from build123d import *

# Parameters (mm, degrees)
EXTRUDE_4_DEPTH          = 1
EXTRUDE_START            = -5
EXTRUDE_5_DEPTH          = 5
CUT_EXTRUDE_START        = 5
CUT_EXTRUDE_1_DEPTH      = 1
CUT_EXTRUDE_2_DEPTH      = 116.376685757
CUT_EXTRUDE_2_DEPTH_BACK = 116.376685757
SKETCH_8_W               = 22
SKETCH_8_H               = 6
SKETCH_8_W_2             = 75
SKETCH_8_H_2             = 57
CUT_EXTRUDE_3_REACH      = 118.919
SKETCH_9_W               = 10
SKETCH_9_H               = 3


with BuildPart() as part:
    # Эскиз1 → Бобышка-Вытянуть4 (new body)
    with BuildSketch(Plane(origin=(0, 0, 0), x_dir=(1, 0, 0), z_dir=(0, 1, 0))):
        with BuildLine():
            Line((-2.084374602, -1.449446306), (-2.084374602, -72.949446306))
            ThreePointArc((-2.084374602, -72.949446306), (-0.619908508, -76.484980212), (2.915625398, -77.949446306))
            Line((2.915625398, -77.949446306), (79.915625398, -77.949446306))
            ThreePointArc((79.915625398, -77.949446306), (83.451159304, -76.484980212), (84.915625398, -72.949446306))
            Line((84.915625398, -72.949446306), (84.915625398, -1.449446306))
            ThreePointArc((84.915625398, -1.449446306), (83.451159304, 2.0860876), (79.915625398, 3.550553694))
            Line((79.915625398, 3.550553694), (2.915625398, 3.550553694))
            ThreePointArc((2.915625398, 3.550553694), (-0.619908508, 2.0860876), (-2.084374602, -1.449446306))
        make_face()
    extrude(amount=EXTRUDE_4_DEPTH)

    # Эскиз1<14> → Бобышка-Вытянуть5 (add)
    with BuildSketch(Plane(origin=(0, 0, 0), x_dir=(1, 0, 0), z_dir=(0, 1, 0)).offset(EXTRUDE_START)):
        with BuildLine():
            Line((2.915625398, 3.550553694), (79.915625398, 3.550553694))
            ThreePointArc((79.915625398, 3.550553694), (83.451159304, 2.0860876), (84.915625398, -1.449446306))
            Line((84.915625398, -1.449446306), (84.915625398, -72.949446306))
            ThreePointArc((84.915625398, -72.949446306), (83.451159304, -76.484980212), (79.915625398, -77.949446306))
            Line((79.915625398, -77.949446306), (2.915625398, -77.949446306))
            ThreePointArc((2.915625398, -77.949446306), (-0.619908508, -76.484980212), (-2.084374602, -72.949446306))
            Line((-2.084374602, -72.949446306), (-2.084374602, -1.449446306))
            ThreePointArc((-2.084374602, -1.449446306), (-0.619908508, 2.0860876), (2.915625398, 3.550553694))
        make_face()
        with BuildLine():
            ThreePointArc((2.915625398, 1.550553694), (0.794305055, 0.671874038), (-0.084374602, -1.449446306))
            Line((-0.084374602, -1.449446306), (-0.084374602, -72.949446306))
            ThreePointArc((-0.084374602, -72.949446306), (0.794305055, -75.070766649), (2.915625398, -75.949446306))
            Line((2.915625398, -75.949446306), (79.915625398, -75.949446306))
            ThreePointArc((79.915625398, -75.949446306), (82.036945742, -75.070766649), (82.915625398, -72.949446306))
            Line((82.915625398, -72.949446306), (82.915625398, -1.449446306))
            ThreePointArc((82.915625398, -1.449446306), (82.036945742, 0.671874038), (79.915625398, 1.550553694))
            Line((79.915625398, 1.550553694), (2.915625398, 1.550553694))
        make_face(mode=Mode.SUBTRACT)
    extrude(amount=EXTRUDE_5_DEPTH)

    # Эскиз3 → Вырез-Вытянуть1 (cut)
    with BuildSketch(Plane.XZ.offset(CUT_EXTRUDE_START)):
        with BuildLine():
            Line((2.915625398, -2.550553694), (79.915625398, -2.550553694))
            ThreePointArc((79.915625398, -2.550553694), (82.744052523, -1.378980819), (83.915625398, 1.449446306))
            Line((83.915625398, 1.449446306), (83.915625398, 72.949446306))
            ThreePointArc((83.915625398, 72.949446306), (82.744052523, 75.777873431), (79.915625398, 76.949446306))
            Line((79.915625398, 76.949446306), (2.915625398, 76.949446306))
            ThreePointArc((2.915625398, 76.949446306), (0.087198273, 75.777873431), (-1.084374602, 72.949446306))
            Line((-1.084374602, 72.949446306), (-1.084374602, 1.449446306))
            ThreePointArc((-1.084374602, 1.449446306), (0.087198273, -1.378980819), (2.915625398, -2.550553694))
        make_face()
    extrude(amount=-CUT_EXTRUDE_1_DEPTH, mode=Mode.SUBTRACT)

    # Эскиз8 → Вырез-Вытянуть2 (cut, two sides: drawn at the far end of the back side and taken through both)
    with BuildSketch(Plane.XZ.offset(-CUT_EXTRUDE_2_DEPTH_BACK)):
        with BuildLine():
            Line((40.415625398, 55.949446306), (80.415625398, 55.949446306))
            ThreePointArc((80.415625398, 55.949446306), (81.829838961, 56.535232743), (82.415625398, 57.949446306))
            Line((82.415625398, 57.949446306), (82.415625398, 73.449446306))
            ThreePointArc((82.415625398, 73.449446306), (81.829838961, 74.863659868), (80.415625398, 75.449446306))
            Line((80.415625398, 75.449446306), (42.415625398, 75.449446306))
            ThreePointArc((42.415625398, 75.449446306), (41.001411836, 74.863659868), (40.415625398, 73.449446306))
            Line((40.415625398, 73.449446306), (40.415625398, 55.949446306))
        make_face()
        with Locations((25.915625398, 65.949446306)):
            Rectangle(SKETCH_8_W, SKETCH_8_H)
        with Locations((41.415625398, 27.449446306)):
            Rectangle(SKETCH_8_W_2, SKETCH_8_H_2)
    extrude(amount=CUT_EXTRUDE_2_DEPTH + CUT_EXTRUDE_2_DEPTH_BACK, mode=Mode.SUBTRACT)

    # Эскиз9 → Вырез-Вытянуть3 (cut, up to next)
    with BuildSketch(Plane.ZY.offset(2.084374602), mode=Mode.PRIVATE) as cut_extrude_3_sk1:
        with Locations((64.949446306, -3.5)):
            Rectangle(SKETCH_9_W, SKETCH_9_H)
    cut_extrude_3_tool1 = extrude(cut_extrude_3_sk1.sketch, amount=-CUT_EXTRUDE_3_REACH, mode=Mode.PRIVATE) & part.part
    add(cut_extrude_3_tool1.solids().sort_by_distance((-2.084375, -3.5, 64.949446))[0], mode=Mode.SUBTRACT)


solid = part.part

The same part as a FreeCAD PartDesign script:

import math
import FreeCAD as App
import Part
import Sketcher

V = App.Vector
Q = App.Units.Quantity


def add_polygon(sketch, points):
    """Adds a closed chain of lines whose ends are joined by coincident constraints."""
    first, n = sketch.GeometryCount, len(points)
    for a, b in zip(points, points[1:] + points[:1]):
        sketch.addGeometry(Part.LineSegment(App.Vector(*a, 0), App.Vector(*b, 0)), False)
    for i in range(n):
        sketch.addConstraint(Sketcher.Constraint("Coincident", first + i, 2, first + (i + 1) % n, 1))

doc = App.newDocument("Part")
body = doc.addObject("PartDesign::Body", "Body")

sketch1 = doc.addObject("Sketcher::SketchObject", "Sketch")
body.addObject(sketch1)
sketch1.AttachmentSupport = (doc.XZ_Plane, [""])
sketch1.MapMode = "FlatFace"
sketch1.addGeometry([
    Part.LineSegment(V(-2, 1, 0), V(-2, 73, 0)),
    Part.ArcOfCircle(Part.Circle(V(3, 73, 0), V(0, 0, 1), 5), math.radians(90), math.radians(180)),
    Part.LineSegment(V(3, 78, 0), V(80, 78, 0)),
    Part.ArcOfCircle(Part.Circle(V(80, 73, 0), V(0, 0, 1), 5), math.radians(0), math.radians(90)),
    Part.LineSegment(V(85, 73, 0), V(85, 1, 0)),
    Part.ArcOfCircle(Part.Circle(V(80, 1, 0), V(0, 0, 1), 5), math.radians(-90), math.radians(0)),
    Part.LineSegment(V(80, -4, 0), V(3, -4, 0)),
    Part.ArcOfCircle(Part.Circle(V(3, 1, 0), V(0, 0, 1), 5), math.radians(180), math.radians(270)),
], False)
sketch1.addConstraint([
    Sketcher.Constraint("Tangent", 0, 2, 1, 2),
    Sketcher.Constraint("Tangent", 1, 1, 2, 1),
    Sketcher.Constraint("Tangent", 2, 2, 3, 2),
    Sketcher.Constraint("Tangent", 3, 1, 4, 1),
    Sketcher.Constraint("Tangent", 4, 2, 5, 2),
    Sketcher.Constraint("Tangent", 5, 1, 6, 1),
    Sketcher.Constraint("Tangent", 6, 2, 7, 2),
    Sketcher.Constraint("Tangent", 7, 1, 0, 1),
    Sketcher.Constraint("Vertical", 0),
    Sketcher.Constraint("Horizontal", 2),
    Sketcher.Constraint("Vertical", 4),
    Sketcher.Constraint("Horizontal", 6),
    Sketcher.Constraint("Equal", 1, 3),
    Sketcher.Constraint("Equal", 3, 5),
    Sketcher.Constraint("Equal", 5, 7),
    Sketcher.Constraint("Radius", 1, Q("5 mm")),
    Sketcher.Constraint("DistanceX", 2, 1, 2, 2, Q("77 mm")),
    Sketcher.Constraint("DistanceY", 0, 1, 0, 2, Q("71.5 mm")),
    Sketcher.Constraint("DistanceX", -1, 1, 1, 3, Q("2.915625 mm")),
    Sketcher.Constraint("DistanceY", -1, 1, 1, 3, Q("72.949446 mm")),
])
pad1 = doc.addObject("PartDesign::Pad", "Pad")
body.addObject(pad1)
pad1.Profile = sketch1
pad1.Length = 1
pad1.Reversed = True

sketch2 = doc.addObject("Sketcher::SketchObject", "Sketch001")
body.addObject(sketch2)
sketch2.AttachmentSupport = (doc.XZ_Plane, [""])
sketch2.MapMode = "FlatFace"
sketch2.AttachmentOffset = App.Placement(V(0, 0, 5), App.Rotation())
sketch2.addGeometry([
    Part.LineSegment(V(79.9, -3.6, 0), V(2.9, -3.6, 0)),
    Part.ArcOfCircle(Part.Circle(V(2.9, 1.4, 0), V(0, 0, 1), 5), math.radians(180), math.radians(270)),
    Part.LineSegment(V(-2.1, 1.4, 0), V(-2.1, 72.9, 0)),
    Part.ArcOfCircle(Part.Circle(V(2.9, 72.9, 0), V(0, 0, 1), 5), math.radians(90), math.radians(180)),
    Part.LineSegment(V(2.9, 77.9, 0), V(79.9, 77.9, 0)),
    Part.ArcOfCircle(Part.Circle(V(79.9, 72.9, 0), V(0, 0, 1), 5), math.radians(0), math.radians(90)),
    Part.LineSegment(V(84.9, 72.9, 0), V(84.9, 1.4, 0)),
    Part.ArcOfCircle(Part.Circle(V(79.9, 1.4, 0), V(0, 0, 1), 5), math.radians(-90), math.radians(0)),
    Part.LineSegment(V(2.9, -1.6, 0), V(79.9, -1.6, 0)),
    Part.ArcOfCircle(Part.Circle(V(79.9, 1.4, 0), V(0, 0, 1), 3), math.radians(-90), math.radians(0)),
    Part.LineSegment(V(82.9, 1.4, 0), V(82.9, 72.9, 0)),
    Part.ArcOfCircle(Part.Circle(V(79.9, 72.9, 0), V(0, 0, 1), 3), math.radians(0), math.radians(90)),
    Part.LineSegment(V(79.9, 75.9, 0), V(2.9, 75.9, 0)),
    Part.ArcOfCircle(Part.Circle(V(2.9, 72.9, 0), V(0, 0, 1), 3), math.radians(90), math.radians(180)),
    Part.LineSegment(V(-0.1, 72.9, 0), V(-0.1, 1.4, 0)),
    Part.ArcOfCircle(Part.Circle(V(2.9, 1.4, 0), V(0, 0, 1), 3), math.radians(180), math.radians(270)),
], False)
sketch2.addConstraint([
    Sketcher.Constraint("Tangent", 0, 2, 1, 2),
    Sketcher.Constraint("Tangent", 1, 1, 2, 1),
    Sketcher.Constraint("Tangent", 2, 2, 3, 2),
    Sketcher.Constraint("Tangent", 3, 1, 4, 1),
    Sketcher.Constraint("Tangent", 4, 2, 5, 2),
    Sketcher.Constraint("Tangent", 5, 1, 6, 1),
    Sketcher.Constraint("Tangent", 6, 2, 7, 2),
    Sketcher.Constraint("Tangent", 7, 1, 0, 1),
    Sketcher.Constraint("Tangent", 8, 2, 9, 1),
    Sketcher.Constraint("Tangent", 9, 2, 10, 1),
    Sketcher.Constraint("Tangent", 10, 2, 11, 1),
    Sketcher.Constraint("Tangent", 11, 2, 12, 1),
    Sketcher.Constraint("Tangent", 12, 2, 13, 1),
    Sketcher.Constraint("Tangent", 13, 2, 14, 1),
    Sketcher.Constraint("Tangent", 14, 2, 15, 1),
    Sketcher.Constraint("Tangent", 15, 2, 8, 1),
    Sketcher.Constraint("Horizontal", 0),
    Sketcher.Constraint("Vertical", 2),
    Sketcher.Constraint("Horizontal", 4),
    Sketcher.Constraint("Vertical", 6),
    Sketcher.Constraint("Horizontal", 8),
    Sketcher.Constraint("Vertical", 10),
    Sketcher.Constraint("Horizontal", 12),
    Sketcher.Constraint("Vertical", 14),
    Sketcher.Constraint("Coincident", 9, 3, 7, 3),
    Sketcher.Constraint("Coincident", 11, 3, 5, 3),
    Sketcher.Constraint("Coincident", 13, 3, 3, 3),
    Sketcher.Constraint("Equal", 1, 3),
    Sketcher.Constraint("Equal", 3, 5),
    Sketcher.Constraint("Equal", 5, 7),
    Sketcher.Constraint("Equal", 13, 15),
    Sketcher.Constraint("Radius", 1, Q("5 mm")),
    Sketcher.Constraint("Radius", 9, Q("3 mm")),
    Sketcher.Constraint("DistanceX", 0, 2, 0, 1, Q("77 mm")),
    Sketcher.Constraint("DistanceY", 2, 1, 2, 2, Q("71.5 mm")),
    Sketcher.Constraint("DistanceX", -1, 1, 1, 3, Q("2.915625 mm")),
    Sketcher.Constraint("DistanceY", -1, 1, 1, 3, Q("1.449446 mm")),
])
pad2 = doc.addObject("PartDesign::Pad", "Pad001")
body.addObject(pad2)
pad2.Profile = sketch2
pad2.Length = 5
pad2.Reversed = True

sketch3 = doc.addObject("Sketcher::SketchObject", "Sketch002")
body.addObject(sketch3)
sketch3.AttachmentSupport = (doc.XZ_Plane, [""])
sketch3.MapMode = "FlatFace"
sketch3.AttachmentOffset = App.Placement(V(0, 0, 5), App.Rotation())
sketch3.addGeometry([
    Part.LineSegment(V(2.9, -2.6, 0), V(79.9, -2.6, 0)),
    Part.ArcOfCircle(Part.Circle(V(79.9, 1.4, 0), V(0, 0, 1), 4), math.radians(-90), math.radians(0)),
    Part.LineSegment(V(83.9, 1.4, 0), V(83.9, 72.9, 0)),
    Part.ArcOfCircle(Part.Circle(V(79.9, 72.9, 0), V(0, 0, 1), 4), math.radians(0), math.radians(90)),
    Part.LineSegment(V(79.9, 76.9, 0), V(2.9, 76.9, 0)),
    Part.ArcOfCircle(Part.Circle(V(2.9, 72.9, 0), V(0, 0, 1), 4), math.radians(90), math.radians(180)),
    Part.LineSegment(V(-1.1, 72.9, 0), V(-1.1, 1.4, 0)),
    Part.ArcOfCircle(Part.Circle(V(2.9, 1.4, 0), V(0, 0, 1), 4), math.radians(180), math.radians(270)),
], False)
sketch3.addConstraint([
    Sketcher.Constraint("Tangent", 0, 2, 1, 1),
    Sketcher.Constraint("Tangent", 1, 2, 2, 1),
    Sketcher.Constraint("Tangent", 2, 2, 3, 1),
    Sketcher.Constraint("Tangent", 3, 2, 4, 1),
    Sketcher.Constraint("Tangent", 4, 2, 5, 1),
    Sketcher.Constraint("Tangent", 5, 2, 6, 1),
    Sketcher.Constraint("Tangent", 6, 2, 7, 1),
    Sketcher.Constraint("Tangent", 7, 2, 0, 1),
    Sketcher.Constraint("Horizontal", 0),
    Sketcher.Constraint("Vertical", 2),
    Sketcher.Constraint("Horizontal", 4),
    Sketcher.Constraint("Vertical", 6),
    Sketcher.Constraint("Equal", 1, 3),
    Sketcher.Constraint("Equal", 3, 5),
    Sketcher.Constraint("Equal", 5, 7),
    Sketcher.Constraint("Radius", 1, Q("4 mm")),
    Sketcher.Constraint("DistanceX", 0, 1, 0, 2, Q("77 mm")),
    Sketcher.Constraint("DistanceY", 2, 1, 2, 2, Q("71.5 mm")),
    Sketcher.Constraint("DistanceX", -1, 1, 1, 3, Q("79.915625 mm")),
    Sketcher.Constraint("DistanceY", -1, 1, 1, 3, Q("1.449446 mm")),
])
pocket1 = doc.addObject("PartDesign::Pocket", "Pocket")
body.addObject(pocket1)
pocket1.Profile = sketch3
pocket1.Length = 1

sketch4 = doc.addObject("Sketcher::SketchObject", "Sketch003")
body.addObject(sketch4)
sketch4.AttachmentSupport = (doc.XZ_Plane, [""])
sketch4.MapMode = "FlatFace"
sketch4.addGeometry(Part.LineSegment(V(78.9, 55.9, 0), V(80.4, 55.9, 0)), False)
sketch4.addGeometry(Part.ArcOfCircle(Part.Circle(V(80.4, 57.9, 0), V(0, 0, 1), 2), math.radians(-90), math.radians(0)), False)
sketch4.addGeometry(Part.LineSegment(V(82.4, 57.9, 0), V(82.4, 73.4, 0)), False)
sketch4.addGeometry(Part.ArcOfCircle(Part.Circle(V(80.4, 73.4, 0), V(0, 0, 1), 2), math.radians(0), math.radians(90)), False)
sketch4.addGeometry(Part.LineSegment(V(80.4, 75.4, 0), V(42.4, 75.4, 0)), False)
sketch4.addGeometry(Part.ArcOfCircle(Part.Circle(V(42.4, 73.4, 0), V(0, 0, 1), 2), math.radians(90), math.radians(180)), False)
sketch4.addGeometry(Part.LineSegment(V(40.4, 73.4, 0), V(40.4, 55.9, 0)), False)
sketch4.addGeometry(Part.LineSegment(V(40.4, 55.9, 0), V(3.9, 55.9, 0)), False)
sketch4.addGeometry(Part.LineSegment(V(3.9, 55.9, 0), V(3.9, -1.1, 0)), False)
sketch4.addGeometry(Part.LineSegment(V(3.9, -1.1, 0), V(78.9, -1.1, 0)), False)
sketch4.addGeometry(Part.LineSegment(V(78.9, -1.1, 0), V(78.9, 55.9, 0)), False)
add_polygon(sketch4, [(14.9, 68.9), (14.9, 62.9), (36.9, 62.9), (36.9, 68.9)])
sketch4.addConstraint([
    Sketcher.Constraint("Tangent", 0, 2, 1, 1),
    Sketcher.Constraint("Tangent", 1, 2, 2, 1),
    Sketcher.Constraint("Tangent", 2, 2, 3, 1),
    Sketcher.Constraint("Tangent", 3, 2, 4, 1),
    Sketcher.Constraint("Tangent", 4, 2, 5, 1),
    Sketcher.Constraint("Tangent", 5, 2, 6, 1),
    Sketcher.Constraint("Coincident", 6, 2, 7, 1),
    Sketcher.Constraint("Coincident", 7, 2, 8, 1),
    Sketcher.Constraint("Coincident", 8, 2, 9, 1),
    Sketcher.Constraint("Coincident", 9, 2, 10, 1),
    Sketcher.Constraint("Coincident", 10, 2, 0, 1),
    Sketcher.Constraint("Horizontal", 0),
    Sketcher.Constraint("Vertical", 2),
    Sketcher.Constraint("Horizontal", 4),
    Sketcher.Constraint("Vertical", 6),
    Sketcher.Constraint("Horizontal", 7),
    Sketcher.Constraint("Vertical", 8),
    Sketcher.Constraint("Horizontal", 9),
    Sketcher.Constraint("Vertical", 10),
    Sketcher.Constraint("Vertical", 11),
    Sketcher.Constraint("Horizontal", 12),
    Sketcher.Constraint("Vertical", 13),
    Sketcher.Constraint("Horizontal", 14),
    Sketcher.Constraint("Equal", 1, 3),
    Sketcher.Constraint("Equal", 3, 5),
    Sketcher.Constraint("Horizontal", 0, 2, 6, 2),
    Sketcher.Constraint("Radius", 1, Q("2 mm")),
    Sketcher.Constraint("DistanceX", 4, 2, 4, 1, Q("38 mm")),
    Sketcher.Constraint("DistanceX", 9, 1, 9, 2, Q("75 mm")),
    Sketcher.Constraint("DistanceX", 12, 1, 12, 2, Q("22 mm")),
    Sketcher.Constraint("DistanceY", 8, 2, 8, 1, Q("57 mm")),
    Sketcher.Constraint("DistanceY", 11, 2, 11, 1, Q("6 mm")),
    Sketcher.Constraint("DistanceX", 0, 1, 0, 2, Q("1.5 mm")),
    Sketcher.Constraint("DistanceY", 2, 1, 2, 2, Q("15.5 mm")),
    Sketcher.Constraint("DistanceX", 7, 2, 11, 2, Q("11 mm")),
    Sketcher.Constraint("DistanceY", 7, 2, 11, 2, Q("7 mm")),
    Sketcher.Constraint("DistanceX", -1, 1, 1, 3, Q("80.415625 mm")),
    Sketcher.Constraint("DistanceY", -1, 1, 1, 3, Q("57.949446 mm")),
])
pocket2 = doc.addObject("PartDesign::Pocket", "Pocket001")
body.addObject(pocket2)
pocket2.Profile = sketch4
pocket2.Type = "ThroughAll"
pocket2.Midplane = True

sketch5 = doc.addObject("Sketcher::SketchObject", "Sketch004")
body.addObject(sketch5)
sketch5.AttachmentSupport = (doc.YZ_Plane, [""])
sketch5.MapMode = "FlatFace"
sketch5.AttachmentOffset = App.Placement(V(0, 0, -2.084375), App.Rotation())
add_polygon(sketch5, [(-2, 59.9), (-5, 59.9), (-5, 69.9), (-2, 69.9)])
sketch5.addConstraint([
    Sketcher.Constraint("Horizontal", 0),
    Sketcher.Constraint("Vertical", 1),
    Sketcher.Constraint("Horizontal", 2),
    Sketcher.Constraint("Vertical", 3),
    Sketcher.Constraint("DistanceX", 0, 2, 0, 1, Q("3 mm")),
    Sketcher.Constraint("DistanceY", 1, 1, 1, 2, Q("10 mm")),
    Sketcher.Constraint("DistanceX", 0, 2, -1, 1, Q("5 mm")),
    Sketcher.Constraint("DistanceY", -1, 1, 0, 2, Q("59.949446 mm")),
])
pocket3 = doc.addObject("PartDesign::Pocket", "Pocket002")
body.addObject(pocket3)
pocket3.Profile = sketch5
pocket3.Type = "UpToFirst"
pocket3.Reversed = True

doc.recompute()
